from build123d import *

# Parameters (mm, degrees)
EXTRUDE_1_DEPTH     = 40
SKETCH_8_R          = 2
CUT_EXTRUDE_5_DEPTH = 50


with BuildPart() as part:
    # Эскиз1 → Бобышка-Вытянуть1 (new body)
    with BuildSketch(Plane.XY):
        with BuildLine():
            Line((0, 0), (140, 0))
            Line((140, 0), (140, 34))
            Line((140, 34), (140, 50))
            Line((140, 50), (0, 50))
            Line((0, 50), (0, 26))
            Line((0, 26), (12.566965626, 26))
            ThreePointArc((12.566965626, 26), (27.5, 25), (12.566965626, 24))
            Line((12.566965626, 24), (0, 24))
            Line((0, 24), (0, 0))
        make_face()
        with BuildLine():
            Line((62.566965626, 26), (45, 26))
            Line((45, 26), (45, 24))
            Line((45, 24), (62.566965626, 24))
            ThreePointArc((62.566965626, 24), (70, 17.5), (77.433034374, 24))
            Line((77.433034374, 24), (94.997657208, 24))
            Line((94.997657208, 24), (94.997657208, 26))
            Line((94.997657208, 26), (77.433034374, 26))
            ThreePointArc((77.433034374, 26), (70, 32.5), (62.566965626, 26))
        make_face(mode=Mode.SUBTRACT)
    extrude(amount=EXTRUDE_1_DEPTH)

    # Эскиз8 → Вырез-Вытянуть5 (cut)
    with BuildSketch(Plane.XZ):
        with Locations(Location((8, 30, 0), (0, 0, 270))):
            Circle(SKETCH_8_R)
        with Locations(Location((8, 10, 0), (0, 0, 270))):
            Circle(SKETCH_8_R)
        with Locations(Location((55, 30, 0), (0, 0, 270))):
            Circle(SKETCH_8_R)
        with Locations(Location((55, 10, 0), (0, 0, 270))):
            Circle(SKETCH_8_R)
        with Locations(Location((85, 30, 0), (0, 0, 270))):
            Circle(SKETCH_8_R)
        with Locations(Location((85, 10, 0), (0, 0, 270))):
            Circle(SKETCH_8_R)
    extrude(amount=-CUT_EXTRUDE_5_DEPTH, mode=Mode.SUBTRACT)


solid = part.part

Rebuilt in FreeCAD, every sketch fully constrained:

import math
import FreeCAD as App
import Part
import Sketcher
from FreeCAD import Vector

doc = App.newDocument("Part")
body = doc.addObject("PartDesign::Body", "Body")

# Sketch on XY plane
sketch1 = body.newObject("Sketcher::SketchObject", "Sketch")
sketch1.AttachmentSupport = (doc.getObject("XY_Plane"), [""])
sketch1.MapMode = "FlatFace"
sketch1.addGeometry(Part.LineSegment(Vector(0, 0, 0), Vector(140, 0, 0)), False)
sketch1.addGeometry(Part.LineSegment(Vector(140, 0, 0), Vector(140, 50, 0)), False)
sketch1.addGeometry(Part.LineSegment(Vector(140, 50, 0), Vector(0, 50, 0)), False)
sketch1.addGeometry(Part.LineSegment(Vector(0, 50, 0), Vector(0, 26, 0)), False)
sketch1.addGeometry(Part.LineSegment(Vector(0, 26, 0), Vector(12.566966, 26, 0)), False)
sketch1.addGeometry(Part.ArcOfCircle(Part.Circle(Vector(20, 25, 0), Vector(0, 0, 1), 7.5), math.radians(-172.337744), math.radians(172.337744)), False)
sketch1.addGeometry(Part.LineSegment(Vector(12.566966, 24, 0), Vector(0, 24, 0)), False)
sketch1.addGeometry(Part.LineSegment(Vector(0, 24, 0), Vector(0, 0, 0)), False)
sketch1.addGeometry(Part.LineSegment(Vector(45, 26, 0), Vector(62.566966, 26, 0)), False)
sketch1.addGeometry(Part.ArcOfCircle(Part.Circle(Vector(70, 25, 0), Vector(0, 0, 1), 7.5), math.radians(7.662256), math.radians(172.337744)), False)
sketch1.addGeometry(Part.LineSegment(Vector(77.433034, 26, 0), Vector(94.997657, 26, 0)), False)
sketch1.addGeometry(Part.LineSegment(Vector(94.997657, 26, 0), Vector(94.997657, 24, 0)), False)
sketch1.addGeometry(Part.LineSegment(Vector(94.997657, 24, 0), Vector(77.433034, 24, 0)), False)
sketch1.addGeometry(Part.ArcOfCircle(Part.Circle(Vector(70, 25, 0), Vector(0, 0, 1), 7.5), math.radians(-172.337744), math.radians(-7.662256)), False)
sketch1.addGeometry(Part.LineSegment(Vector(62.566966, 24, 0), Vector(45, 24, 0)), False)
sketch1.addGeometry(Part.LineSegment(Vector(45, 24, 0), Vector(45, 26, 0)), False)
sketch1.addConstraint(Sketcher.Constraint("Coincident", 0, 2, 1, 1))
sketch1.addConstraint(Sketcher.Constraint("Coincident", 1, 2, 2, 1))
sketch1.addConstraint(Sketcher.Constraint("Coincident", 2, 2, 3, 1))
sketch1.addConstraint(Sketcher.Constraint("Coincident", 3, 2, 4, 1))
sketch1.addConstraint(Sketcher.Constraint("Coincident", 4, 2, 5, 2))
sketch1.addConstraint(Sketcher.Constraint("Coincident", 5, 1, 6, 1))
sketch1.addConstraint(Sketcher.Constraint("Coincident", 6, 2, 7, 1))
sketch1.addConstraint(Sketcher.Constraint("Coincident", 7, 2, 0, 1))
sketch1.addConstraint(Sketcher.Constraint("Coincident", 8, 2, 9, 2))
sketch1.addConstraint(Sketcher.Constraint("Coincident", 9, 1, 10, 1))
sketch1.addConstraint(Sketcher.Constraint("Coincident", 10, 2, 11, 1))
sketch1.addConstraint(Sketcher.Constraint("Coincident", 11, 2, 12, 1))
sketch1.addConstraint(Sketcher.Constraint("Coincident", 12, 2, 13, 2))
sketch1.addConstraint(Sketcher.Constraint("Coincident", 13, 1, 14, 1))
sketch1.addConstraint(Sketcher.Constraint("Coincident", 14, 2, 15, 1))
sketch1.addConstraint(Sketcher.Constraint("Coincident", 15, 2, 8, 1))
sketch1.addConstraint(Sketcher.Constraint("Horizontal", 0))
sketch1.addConstraint(Sketcher.Constraint("Vertical", 1))
sketch1.addConstraint(Sketcher.Constraint("Horizontal", 2))
sketch1.addConstraint(Sketcher.Constraint("Vertical", 3))
sketch1.addConstraint(Sketcher.Constraint("Horizontal", 4))
sketch1.addConstraint(Sketcher.Constraint("Horizontal", 6))
sketch1.addConstraint(Sketcher.Constraint("Vertical", 7))
sketch1.addConstraint(Sketcher.Constraint("Horizontal", 8))
sketch1.addConstraint(Sketcher.Constraint("Horizontal", 10))
sketch1.addConstraint(Sketcher.Constraint("Vertical", 11))
sketch1.addConstraint(Sketcher.Constraint("Horizontal", 12))
sketch1.addConstraint(Sketcher.Constraint("Horizontal", 14))
sketch1.addConstraint(Sketcher.Constraint("Vertical", 15))
sketch1.addConstraint(Sketcher.Constraint("Coincident", 7, 2, -1, 1))
sketch1.addConstraint(Sketcher.Constraint("Coincident", 13, 3, 9, 3))
sketch1.addConstraint(Sketcher.Constraint("Equal", 5, 9))
sketch1.addConstraint(Sketcher.Constraint("Equal", 9, 13))
sketch1.addConstraint(Sketcher.Constraint("PointOnObject", 2, 2, -2))
sketch1.addConstraint(Sketcher.Constraint("Horizontal", 5, 3, 9, 3))
sketch1.addConstraint(Sketcher.Constraint("Horizontal", 4, 2, 8, 2))
sketch1.addConstraint(Sketcher.Constraint("Horizontal", 8, 2, 9, 1))
sketch1.addConstraint(Sketcher.Constraint("Horizontal", 6, 2, 11, 2))
sketch1.addConstraint(Sketcher.Constraint("Horizontal", 12, 2, 13, 1))
sketch1.addConstraint(Sketcher.Constraint("Vertical", 4, 2, 5, 1))
sketch1.addConstraint(Sketcher.Constraint("Equal", 3, 7))
sketch1.addConstraint(Sketcher.Constraint("Radius", 5, 7.5))
sketch1.addConstraint(Sketcher.Constraint("DistanceX", 0, 1, 0, 2, 140.0))
sketch1.addConstraint(Sketcher.Constraint("DistanceY", 1, 1, 1, 2, 50.0))
sketch1.addConstraint(Sketcher.Constraint("DistanceY", 3, 2, 3, 1, 24.0))
sketch1.addConstraint(Sketcher.Constraint("DistanceX", -1, 1, 5, 3, 20.0))
sketch1.addConstraint(Sketcher.Constraint("DistanceX", -1, 1, 9, 3, 70.0))
sketch1.addConstraint(Sketcher.Constraint("DistanceX", -1, 1, 14, 2, 45.0))
sketch1.addConstraint(Sketcher.Constraint("DistanceX", 10, 1, 10, 2, 17.564623))
pad1 = body.newObject("PartDesign::Pad", "Pad")
pad1.Profile = sketch1
pad1.Length = 40

# Sketch on XZ plane
sketch2 = body.newObject("Sketcher::SketchObject", "Sketch001")
sketch2.AttachmentSupport = (doc.getObject("XZ_Plane"), [""])
sketch2.MapMode = "FlatFace"
sketch2.addGeometry(Part.Circle(Vector(8, 30, 0), Vector(0, 0, 1), 2), False)
sketch2.addGeometry(Part.Circle(Vector(8, 10, 0), Vector(0, 0, 1), 2), False)
sketch2.addGeometry(Part.Circle(Vector(55, 30, 0), Vector(0, 0, 1), 2), False)
sketch2.addGeometry(Part.Circle(Vector(55, 10, 0), Vector(0, 0, 1), 2), False)
sketch2.addGeometry(Part.Circle(Vector(85, 30, 0), Vector(0, 0, 1), 2), False)
sketch2.addGeometry(Part.Circle(Vector(85, 10, 0), Vector(0, 0, 1), 2), False)
sketch2.addConstraint(Sketcher.Constraint("Equal", 0, 1))
sketch2.addConstraint(Sketcher.Constraint("Equal", 1, 2))
sketch2.addConstraint(Sketcher.Constraint("Equal", 2, 3))
sketch2.addConstraint(Sketcher.Constraint("Equal", 3, 4))
sketch2.addConstraint(Sketcher.Constraint("Equal", 4, 5))
sketch2.addConstraint(Sketcher.Constraint("Horizontal", 0, 3, 2, 3))
sketch2.addConstraint(Sketcher.Constraint("Horizontal", 1, 3, 3, 3))
sketch2.addConstraint(Sketcher.Constraint("Horizontal", 2, 3, 4, 3))
sketch2.addConstraint(Sketcher.Constraint("Horizontal", 3, 3, 5, 3))
sketch2.addConstraint(Sketcher.Constraint("Vertical", 0, 3, 1, 3))
sketch2.addConstraint(Sketcher.Constraint("Vertical", 2, 3, 3, 3))
sketch2.addConstraint(Sketcher.Constraint("Vertical", 4, 3, 5, 3))
sketch2.addConstraint(Sketcher.Constraint("Diameter", 0, 4.0))
sketch2.addConstraint(Sketcher.Constraint("DistanceX", -1, 1, 0, 3, 8.0))
sketch2.addConstraint(Sketcher.Constraint("DistanceY", -1, 1, 0, 3, 30.0))
sketch2.addConstraint(Sketcher.Constraint("DistanceY", -1, 1, 1, 3, 10.0))
sketch2.addConstraint(Sketcher.Constraint("DistanceX", -1, 1, 2, 3, 55.0))
sketch2.addConstraint(Sketcher.Constraint("DistanceX", -1, 1, 4, 3, 85.0))
pocket1 = body.newObject("PartDesign::Pocket", "Pocket")
pocket1.Profile = sketch2
pocket1.Length = 50

doc.recompute()
